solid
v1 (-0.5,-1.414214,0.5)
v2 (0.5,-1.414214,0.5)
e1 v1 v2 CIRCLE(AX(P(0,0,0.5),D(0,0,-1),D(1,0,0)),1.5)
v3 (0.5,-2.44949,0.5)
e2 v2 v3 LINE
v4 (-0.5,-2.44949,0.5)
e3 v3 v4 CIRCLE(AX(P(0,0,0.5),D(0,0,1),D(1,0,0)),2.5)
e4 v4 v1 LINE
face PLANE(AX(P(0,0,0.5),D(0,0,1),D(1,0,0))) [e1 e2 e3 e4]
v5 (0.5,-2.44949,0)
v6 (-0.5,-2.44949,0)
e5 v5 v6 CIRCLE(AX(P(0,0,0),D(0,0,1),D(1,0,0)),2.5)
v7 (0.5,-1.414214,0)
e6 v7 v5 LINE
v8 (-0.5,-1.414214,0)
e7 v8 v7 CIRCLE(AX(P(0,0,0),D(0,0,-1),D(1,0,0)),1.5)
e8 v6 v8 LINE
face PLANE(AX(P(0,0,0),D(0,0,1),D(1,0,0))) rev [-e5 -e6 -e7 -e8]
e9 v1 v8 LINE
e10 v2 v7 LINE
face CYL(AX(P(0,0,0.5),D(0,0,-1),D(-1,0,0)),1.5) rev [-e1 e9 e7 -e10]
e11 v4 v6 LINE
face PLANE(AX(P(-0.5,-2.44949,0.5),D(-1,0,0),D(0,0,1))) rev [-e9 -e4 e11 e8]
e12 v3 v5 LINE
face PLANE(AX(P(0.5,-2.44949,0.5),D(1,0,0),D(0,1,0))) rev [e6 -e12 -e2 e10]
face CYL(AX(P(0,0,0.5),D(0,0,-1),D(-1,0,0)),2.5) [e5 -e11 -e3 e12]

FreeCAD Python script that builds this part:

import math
import FreeCAD as App
import Part
import Sketcher
from FreeCAD import Vector

doc = App.newDocument("Part")
params = doc.addObject("Spreadsheet::Sheet", "Params")
for row, (alias, value) in enumerate([
    ("sketch1_radius", "2.5 mm"),
    ("sketch1_radius2", "1.5 mm"),
    ("pad1_length", "0.5 mm"),
], start=1):
    params.set(f"A{row}", alias)
    params.set(f"B{row}", "=" + value)
    params.setAlias(f"B{row}", alias)

body = doc.addObject("PartDesign::Body", "Body")

sketch1 = body.newObject("Sketcher::SketchObject", "Sketch")
sketch1.AttachmentSupport = (doc.getObject("XY_Plane"), [""])
sketch1.MapMode = "FlatFace"
sketch1.addGeometry(Part.LineSegment(Vector(0.5, -1.4, 0), Vector(0.5, -2.4, 0)), False)
sketch1.addGeometry(Part.ArcOfCircle(Part.Circle(Vector(0, 0, 0), Vector(0, 0, 1), 2.5), math.radians(-78), math.radians(258)), False)
sketch1.addGeometry(Part.LineSegment(Vector(-0.5, -2.4, 0), Vector(-0.5, -1.4, 0)), False)
sketch1.addGeometry(Part.ArcOfCircle(Part.Circle(Vector(0, 0, 0), Vector(0, 0, 1), 1.5), math.radians(-71), math.radians(251)), False)
sketch1.addConstraint(Sketcher.Constraint("Coincident", 0, 2, 1, 1))
sketch1.addConstraint(Sketcher.Constraint("Coincident", 1, 2, 2, 1))
sketch1.addConstraint(Sketcher.Constraint("Coincident", 2, 2, 3, 2))
sketch1.addConstraint(Sketcher.Constraint("Coincident", 3, 1, 0, 1))
sketch1.addConstraint(Sketcher.Constraint("Vertical", 0))
sketch1.addConstraint(Sketcher.Constraint("Vertical", 2))
sketch1.addConstraint(Sketcher.Constraint("Coincident", 1, 3, -1, 1))
sketch1.addConstraint(Sketcher.Constraint("Coincident", 3, 3, -1, 1))
sketch1.addConstraint(Sketcher.Constraint("Horizontal", 0, 2, 1, 2))
sketch1.addConstraint(Sketcher.Constraint("Radius", 1, 2.5))
sketch1.addConstraint(Sketcher.Constraint("Radius", 3, 1.5))
sketch1.addConstraint(Sketcher.Constraint("DistanceX", 1, 2, 0, 2, 1.0))
sketch1.setExpression("Constraints[9]", "Params.sketch1_radius")
sketch1.setExpression("Constraints[10]", "Params.sketch1_radius2")
pad1 = body.newObject("PartDesign::Pad", "Pad")
pad1.Profile = sketch1
pad1.setExpression("Length", "Params.pad1_length")

doc.recompute()
